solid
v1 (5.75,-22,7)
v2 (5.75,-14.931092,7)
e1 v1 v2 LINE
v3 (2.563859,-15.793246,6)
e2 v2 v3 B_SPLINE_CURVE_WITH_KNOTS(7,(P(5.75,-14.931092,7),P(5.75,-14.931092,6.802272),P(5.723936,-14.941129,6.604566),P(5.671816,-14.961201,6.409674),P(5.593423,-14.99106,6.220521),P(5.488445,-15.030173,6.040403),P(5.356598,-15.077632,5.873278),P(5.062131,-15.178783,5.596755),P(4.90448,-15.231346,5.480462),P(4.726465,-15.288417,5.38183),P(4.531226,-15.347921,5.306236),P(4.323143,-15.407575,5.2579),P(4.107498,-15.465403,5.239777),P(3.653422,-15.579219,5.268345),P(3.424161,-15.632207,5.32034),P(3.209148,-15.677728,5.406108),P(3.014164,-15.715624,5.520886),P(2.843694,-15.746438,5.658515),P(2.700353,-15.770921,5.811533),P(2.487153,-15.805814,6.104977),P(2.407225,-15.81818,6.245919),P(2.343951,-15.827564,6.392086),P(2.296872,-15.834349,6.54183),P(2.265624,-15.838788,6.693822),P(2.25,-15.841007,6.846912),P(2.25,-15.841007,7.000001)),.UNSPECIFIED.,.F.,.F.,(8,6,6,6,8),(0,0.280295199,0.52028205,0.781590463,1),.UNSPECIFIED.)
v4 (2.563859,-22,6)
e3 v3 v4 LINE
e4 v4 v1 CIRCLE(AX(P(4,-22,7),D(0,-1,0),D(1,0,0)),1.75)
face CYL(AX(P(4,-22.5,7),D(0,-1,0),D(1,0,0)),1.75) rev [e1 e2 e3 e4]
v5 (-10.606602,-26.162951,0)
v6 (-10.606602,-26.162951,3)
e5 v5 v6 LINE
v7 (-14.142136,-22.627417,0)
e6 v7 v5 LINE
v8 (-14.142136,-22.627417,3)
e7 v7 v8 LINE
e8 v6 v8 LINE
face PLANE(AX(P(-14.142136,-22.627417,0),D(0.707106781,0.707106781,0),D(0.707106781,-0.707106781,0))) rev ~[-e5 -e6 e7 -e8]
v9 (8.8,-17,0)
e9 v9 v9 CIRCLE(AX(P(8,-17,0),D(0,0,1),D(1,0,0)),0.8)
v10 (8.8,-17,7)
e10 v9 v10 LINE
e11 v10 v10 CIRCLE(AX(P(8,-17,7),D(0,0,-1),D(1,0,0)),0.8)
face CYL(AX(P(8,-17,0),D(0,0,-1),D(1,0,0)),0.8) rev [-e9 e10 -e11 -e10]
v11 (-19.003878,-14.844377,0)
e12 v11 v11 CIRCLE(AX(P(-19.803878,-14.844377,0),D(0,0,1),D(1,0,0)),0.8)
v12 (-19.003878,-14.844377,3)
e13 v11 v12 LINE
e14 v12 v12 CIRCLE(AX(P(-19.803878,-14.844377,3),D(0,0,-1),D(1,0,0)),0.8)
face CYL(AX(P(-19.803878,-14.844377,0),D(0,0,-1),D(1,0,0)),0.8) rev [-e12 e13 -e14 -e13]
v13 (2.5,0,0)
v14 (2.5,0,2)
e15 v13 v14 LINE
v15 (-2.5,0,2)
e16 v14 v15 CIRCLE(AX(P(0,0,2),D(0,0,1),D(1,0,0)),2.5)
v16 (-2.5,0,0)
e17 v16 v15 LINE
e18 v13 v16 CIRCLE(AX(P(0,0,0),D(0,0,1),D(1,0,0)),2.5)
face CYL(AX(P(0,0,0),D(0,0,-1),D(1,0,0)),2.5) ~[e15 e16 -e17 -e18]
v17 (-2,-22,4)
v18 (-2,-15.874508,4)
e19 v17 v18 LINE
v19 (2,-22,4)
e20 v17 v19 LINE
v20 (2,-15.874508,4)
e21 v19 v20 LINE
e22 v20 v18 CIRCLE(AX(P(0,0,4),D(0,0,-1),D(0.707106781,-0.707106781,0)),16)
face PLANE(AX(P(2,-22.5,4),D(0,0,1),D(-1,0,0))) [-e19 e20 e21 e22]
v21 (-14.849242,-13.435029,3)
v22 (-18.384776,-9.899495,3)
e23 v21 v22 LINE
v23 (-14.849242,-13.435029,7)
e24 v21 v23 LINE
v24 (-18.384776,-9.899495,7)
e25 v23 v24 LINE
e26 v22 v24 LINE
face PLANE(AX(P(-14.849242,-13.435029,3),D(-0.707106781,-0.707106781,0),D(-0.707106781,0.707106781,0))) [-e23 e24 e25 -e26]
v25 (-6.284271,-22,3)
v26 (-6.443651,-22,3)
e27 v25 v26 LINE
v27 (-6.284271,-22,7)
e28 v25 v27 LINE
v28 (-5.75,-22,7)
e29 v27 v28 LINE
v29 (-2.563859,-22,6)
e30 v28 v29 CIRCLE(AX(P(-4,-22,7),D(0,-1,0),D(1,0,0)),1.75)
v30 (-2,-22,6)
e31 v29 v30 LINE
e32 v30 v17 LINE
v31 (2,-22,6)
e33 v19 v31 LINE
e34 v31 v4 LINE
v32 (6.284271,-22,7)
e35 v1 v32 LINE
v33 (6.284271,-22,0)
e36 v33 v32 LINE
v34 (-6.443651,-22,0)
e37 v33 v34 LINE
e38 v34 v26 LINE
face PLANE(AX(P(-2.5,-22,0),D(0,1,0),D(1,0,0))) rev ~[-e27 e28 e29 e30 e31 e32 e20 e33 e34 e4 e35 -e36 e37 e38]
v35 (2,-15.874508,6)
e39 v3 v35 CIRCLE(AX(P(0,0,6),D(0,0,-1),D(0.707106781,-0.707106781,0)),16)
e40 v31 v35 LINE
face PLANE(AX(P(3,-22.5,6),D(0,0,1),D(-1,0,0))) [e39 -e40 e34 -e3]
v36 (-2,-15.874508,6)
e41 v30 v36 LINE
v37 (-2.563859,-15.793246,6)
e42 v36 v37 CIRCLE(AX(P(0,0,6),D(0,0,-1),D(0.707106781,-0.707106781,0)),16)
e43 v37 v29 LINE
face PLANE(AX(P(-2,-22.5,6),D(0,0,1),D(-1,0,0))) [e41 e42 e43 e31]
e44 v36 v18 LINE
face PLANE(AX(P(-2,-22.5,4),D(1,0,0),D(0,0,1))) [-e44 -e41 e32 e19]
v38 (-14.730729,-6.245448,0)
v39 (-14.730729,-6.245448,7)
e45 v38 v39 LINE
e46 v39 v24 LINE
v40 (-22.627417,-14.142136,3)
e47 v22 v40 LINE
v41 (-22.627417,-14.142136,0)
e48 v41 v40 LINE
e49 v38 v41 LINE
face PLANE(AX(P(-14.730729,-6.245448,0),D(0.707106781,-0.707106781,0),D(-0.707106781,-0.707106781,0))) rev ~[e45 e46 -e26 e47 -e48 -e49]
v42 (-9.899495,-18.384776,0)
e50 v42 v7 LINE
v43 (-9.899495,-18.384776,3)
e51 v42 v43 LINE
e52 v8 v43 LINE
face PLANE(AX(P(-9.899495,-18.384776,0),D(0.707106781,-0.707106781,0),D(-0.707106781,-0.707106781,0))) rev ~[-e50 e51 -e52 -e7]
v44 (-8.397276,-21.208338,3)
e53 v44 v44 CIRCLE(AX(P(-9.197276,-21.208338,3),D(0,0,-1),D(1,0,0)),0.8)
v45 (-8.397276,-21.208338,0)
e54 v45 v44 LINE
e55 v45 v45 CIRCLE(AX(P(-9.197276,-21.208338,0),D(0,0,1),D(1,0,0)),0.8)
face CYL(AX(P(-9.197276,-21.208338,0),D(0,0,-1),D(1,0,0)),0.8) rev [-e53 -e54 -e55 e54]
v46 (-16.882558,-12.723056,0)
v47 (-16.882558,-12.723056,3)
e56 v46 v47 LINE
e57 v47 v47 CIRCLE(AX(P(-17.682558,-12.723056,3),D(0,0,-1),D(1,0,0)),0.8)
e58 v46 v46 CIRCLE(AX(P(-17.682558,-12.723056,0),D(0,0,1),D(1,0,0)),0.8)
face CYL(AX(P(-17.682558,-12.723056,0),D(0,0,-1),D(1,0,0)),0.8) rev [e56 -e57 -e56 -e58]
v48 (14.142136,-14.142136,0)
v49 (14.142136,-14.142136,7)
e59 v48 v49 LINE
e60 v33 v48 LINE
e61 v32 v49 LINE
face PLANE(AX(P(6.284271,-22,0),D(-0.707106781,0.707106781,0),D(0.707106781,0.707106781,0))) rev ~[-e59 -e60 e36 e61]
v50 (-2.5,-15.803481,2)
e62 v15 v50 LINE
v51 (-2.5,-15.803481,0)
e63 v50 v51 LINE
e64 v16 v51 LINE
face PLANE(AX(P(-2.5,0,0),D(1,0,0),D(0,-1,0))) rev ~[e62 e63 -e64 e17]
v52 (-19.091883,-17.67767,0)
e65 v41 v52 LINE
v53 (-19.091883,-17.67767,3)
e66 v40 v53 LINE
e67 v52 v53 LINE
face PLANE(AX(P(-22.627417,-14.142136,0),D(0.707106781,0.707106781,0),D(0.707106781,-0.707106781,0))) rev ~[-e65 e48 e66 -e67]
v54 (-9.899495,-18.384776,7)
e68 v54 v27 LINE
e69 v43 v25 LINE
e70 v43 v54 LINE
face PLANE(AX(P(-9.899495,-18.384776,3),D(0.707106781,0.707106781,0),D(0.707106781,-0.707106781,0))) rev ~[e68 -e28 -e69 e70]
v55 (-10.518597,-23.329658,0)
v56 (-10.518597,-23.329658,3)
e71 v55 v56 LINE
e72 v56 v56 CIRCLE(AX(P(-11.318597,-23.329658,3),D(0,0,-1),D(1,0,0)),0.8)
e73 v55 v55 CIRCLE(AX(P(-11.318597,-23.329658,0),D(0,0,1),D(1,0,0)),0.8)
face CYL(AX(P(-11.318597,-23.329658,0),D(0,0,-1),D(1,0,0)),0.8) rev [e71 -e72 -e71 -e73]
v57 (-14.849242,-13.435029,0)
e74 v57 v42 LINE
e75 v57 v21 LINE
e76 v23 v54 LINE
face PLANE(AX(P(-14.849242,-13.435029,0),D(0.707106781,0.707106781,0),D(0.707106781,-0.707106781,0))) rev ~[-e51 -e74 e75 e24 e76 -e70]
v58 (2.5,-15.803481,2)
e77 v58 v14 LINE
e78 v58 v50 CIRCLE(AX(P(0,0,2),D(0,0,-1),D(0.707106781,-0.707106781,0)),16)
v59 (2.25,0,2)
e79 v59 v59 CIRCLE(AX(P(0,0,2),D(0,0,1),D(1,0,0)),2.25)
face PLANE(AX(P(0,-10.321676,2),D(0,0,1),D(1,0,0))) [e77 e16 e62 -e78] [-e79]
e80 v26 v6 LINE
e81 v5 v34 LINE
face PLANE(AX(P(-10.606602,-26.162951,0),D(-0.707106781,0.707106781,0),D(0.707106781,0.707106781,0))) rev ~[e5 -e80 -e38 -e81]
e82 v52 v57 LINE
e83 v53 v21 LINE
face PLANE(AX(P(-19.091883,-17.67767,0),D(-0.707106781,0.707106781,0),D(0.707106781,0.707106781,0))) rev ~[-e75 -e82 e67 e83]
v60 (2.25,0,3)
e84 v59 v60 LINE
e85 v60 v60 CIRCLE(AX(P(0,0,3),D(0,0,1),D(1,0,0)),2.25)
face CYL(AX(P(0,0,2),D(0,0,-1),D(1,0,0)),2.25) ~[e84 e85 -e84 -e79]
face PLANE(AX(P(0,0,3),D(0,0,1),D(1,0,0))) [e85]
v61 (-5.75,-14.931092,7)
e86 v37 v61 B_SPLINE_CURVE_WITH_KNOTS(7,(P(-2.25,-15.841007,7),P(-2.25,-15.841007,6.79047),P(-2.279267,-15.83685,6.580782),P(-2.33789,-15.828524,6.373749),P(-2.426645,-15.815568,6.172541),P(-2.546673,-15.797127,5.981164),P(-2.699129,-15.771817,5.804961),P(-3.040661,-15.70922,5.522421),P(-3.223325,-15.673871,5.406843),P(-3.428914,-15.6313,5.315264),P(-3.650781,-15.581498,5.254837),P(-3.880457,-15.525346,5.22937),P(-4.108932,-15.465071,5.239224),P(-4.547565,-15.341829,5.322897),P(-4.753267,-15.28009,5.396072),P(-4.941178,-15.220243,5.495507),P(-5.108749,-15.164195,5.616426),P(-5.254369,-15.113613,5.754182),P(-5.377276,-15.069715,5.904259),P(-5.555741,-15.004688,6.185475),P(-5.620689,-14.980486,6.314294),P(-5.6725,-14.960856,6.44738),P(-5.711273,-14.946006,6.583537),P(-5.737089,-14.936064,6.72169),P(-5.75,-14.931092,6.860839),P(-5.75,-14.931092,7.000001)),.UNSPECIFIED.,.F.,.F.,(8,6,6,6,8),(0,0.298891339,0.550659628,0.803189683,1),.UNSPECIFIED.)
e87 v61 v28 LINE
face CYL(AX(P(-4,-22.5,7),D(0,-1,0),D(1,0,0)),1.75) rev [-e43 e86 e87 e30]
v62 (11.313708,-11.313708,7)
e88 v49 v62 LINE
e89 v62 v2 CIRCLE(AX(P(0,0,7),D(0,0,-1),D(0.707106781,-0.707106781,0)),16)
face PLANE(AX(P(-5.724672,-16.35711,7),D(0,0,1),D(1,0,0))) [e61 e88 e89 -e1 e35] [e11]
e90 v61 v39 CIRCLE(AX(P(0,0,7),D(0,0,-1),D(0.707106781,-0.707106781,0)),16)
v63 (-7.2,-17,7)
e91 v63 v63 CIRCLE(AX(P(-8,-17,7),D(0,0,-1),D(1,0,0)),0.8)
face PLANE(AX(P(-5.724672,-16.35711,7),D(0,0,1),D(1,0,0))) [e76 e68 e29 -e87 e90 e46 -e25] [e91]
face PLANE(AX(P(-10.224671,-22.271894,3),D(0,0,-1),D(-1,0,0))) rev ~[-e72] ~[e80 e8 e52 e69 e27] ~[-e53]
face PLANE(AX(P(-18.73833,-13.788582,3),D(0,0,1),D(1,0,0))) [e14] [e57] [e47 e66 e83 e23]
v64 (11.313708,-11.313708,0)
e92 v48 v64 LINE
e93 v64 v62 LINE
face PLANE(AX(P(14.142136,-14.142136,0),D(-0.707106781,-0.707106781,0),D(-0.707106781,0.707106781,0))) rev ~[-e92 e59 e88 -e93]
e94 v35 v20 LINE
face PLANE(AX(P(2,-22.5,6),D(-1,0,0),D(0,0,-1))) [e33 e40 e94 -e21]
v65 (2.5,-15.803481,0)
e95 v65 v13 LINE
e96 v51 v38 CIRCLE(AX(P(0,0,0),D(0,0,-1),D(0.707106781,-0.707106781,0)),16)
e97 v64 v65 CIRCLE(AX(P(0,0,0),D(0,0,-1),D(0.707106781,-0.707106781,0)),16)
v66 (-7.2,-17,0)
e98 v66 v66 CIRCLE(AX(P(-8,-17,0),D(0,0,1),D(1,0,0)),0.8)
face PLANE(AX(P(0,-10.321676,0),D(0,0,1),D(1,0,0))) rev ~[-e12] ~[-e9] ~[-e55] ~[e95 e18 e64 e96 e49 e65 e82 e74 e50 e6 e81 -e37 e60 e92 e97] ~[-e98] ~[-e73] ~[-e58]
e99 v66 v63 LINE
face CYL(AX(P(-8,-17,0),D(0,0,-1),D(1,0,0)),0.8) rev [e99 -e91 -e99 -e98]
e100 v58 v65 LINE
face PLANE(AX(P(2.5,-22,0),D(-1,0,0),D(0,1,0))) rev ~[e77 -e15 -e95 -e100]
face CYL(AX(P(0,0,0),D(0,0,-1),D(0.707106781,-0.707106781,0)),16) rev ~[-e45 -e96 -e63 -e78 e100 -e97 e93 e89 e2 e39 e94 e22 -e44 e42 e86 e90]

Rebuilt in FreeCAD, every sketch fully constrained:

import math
import FreeCAD as App
import Part
import Sketcher
Q = App.Units.Quantity


def add_polygon(sketch, points):
    """Adds a closed chain of lines whose ends are joined by coincident constraints."""
    first, n = sketch.GeometryCount, len(points)
    for a, b in zip(points, points[1:] + points[:1]):
        sketch.addGeometry(Part.LineSegment(App.Vector(*a, 0), App.Vector(*b, 0)), False)
    for i in range(n):
        sketch.addConstraint(Sketcher.Constraint("Coincident", first + i, 2, first + (i + 1) % n, 1))

doc = App.newDocument("Part")
params = doc.addObject("Spreadsheet::Sheet", "Params")
for row, (alias, value) in enumerate([
    ("sketch1_radius", "16 mm"),
    ("sketch1_length", "4 mm"),
    ("sketch1_length2", "5 mm"),
    ("sketch1_length3", "6 mm"),
    ("sketch1_length4", "7 mm"),
    ("pad1_length", "7 mm"),
    ("sketch2_radius", "2.5 mm"),
    ("sketch2_height", "22 mm"),
    ("pad2_length", "2 mm"),
    ("sketch3_diameter", "4.5 mm"),
    ("pad3_length", "1 mm"),
    ("sketch4_diameter", "3.5 mm"),
    ("pocket1_length", "20 mm"),
    ("sketch5_width", "6 mm"),
    ("sketch5_width2", "1 mm"),
    ("sketch5_height", "2 mm"),
    ("pocket2_length", "8 mm"),
    ("sketch6_diameter", "1.6 mm"),
    ("sketch7_length", "6 mm"),
    ("sketch7_length2", "5 mm"),
    ("pocket4_length", "4 mm"),
], start=1):
    params.set(f"A{row}", alias)
    params.set(f"B{row}", "=" + value)
    params.setAlias(f"B{row}", alias)

body = doc.addObject("PartDesign::Body", "Body")

# Sketch on XY plane
sketch1 = doc.addObject("Sketcher::SketchObject", "Sketch")
body.addObject(sketch1)
sketch1.AttachmentSupport = (doc.XY_Plane, [""])
sketch1.MapMode = "FlatFace"
sketch1.addGeometry([
    Part.LineSegment(App.Vector(14.142136, -14.142136, 0), App.Vector(11.313708, -11.313708, 0)),  # 0
    Part.ArcOfCircle(Part.Circle(App.Vector(0, 0, 0), App.Vector(0, 0, 1), 16), math.radians(-157.024313), math.radians(-45)),  # 1
    Part.LineSegment(App.Vector(-14.730729, -6.245448, 0), App.Vector(-22.627417, -14.142136, 0)),  # 2
    Part.LineSegment(App.Vector(-22.627417, -14.142136, 0), App.Vector(-19.091883, -17.67767, 0)),  # 3
    Part.LineSegment(App.Vector(-19.091883, -17.67767, 0), App.Vector(-14.849242, -13.435029, 0)),  # 4
    Part.LineSegment(App.Vector(-14.849242, -13.435029, 0), App.Vector(-9.899495, -18.384776, 0)),  # 5
    Part.LineSegment(App.Vector(-9.899495, -18.384776, 0), App.Vector(-14.142136, -22.627417, 0)),  # 6
    Part.LineSegment(App.Vector(-14.142136, -22.627417, 0), App.Vector(-10.606602, -26.162951, 0)),  # 7
    Part.LineSegment(App.Vector(-10.606602, -26.162951, 0), App.Vector(-6.443651, -22, 0)),  # 8
    Part.LineSegment(App.Vector(-6.443651, -22, 0), App.Vector(6.284271, -22, 0)),  # 9
    Part.LineSegment(App.Vector(6.284271, -22, 0), App.Vector(14.142136, -14.142136, 0)),  # 10
], False)
sketch1.addConstraint([
    Sketcher.Constraint("Coincident", 0, 2, 1, 2),
    Sketcher.Constraint("Coincident", 1, 1, 2, 1),
    Sketcher.Constraint("Coincident", 2, 2, 3, 1),
    Sketcher.Constraint("Coincident", 3, 2, 4, 1),
    Sketcher.Constraint("Coincident", 4, 2, 5, 1),
    Sketcher.Constraint("Coincident", 5, 2, 6, 1),
    Sketcher.Constraint("Coincident", 6, 2, 7, 1),
    Sketcher.Constraint("Coincident", 7, 2, 8, 1),
    Sketcher.Constraint("Coincident", 8, 2, 9, 1),
    Sketcher.Constraint("Coincident", 9, 2, 10, 1),
    Sketcher.Constraint("Coincident", 10, 2, 0, 1),
    Sketcher.Constraint("Horizontal", 9),
    Sketcher.Constraint("Coincident", 1, 3, -1, 1),
    Sketcher.Constraint("Perpendicular", 0, 2),
    Sketcher.Constraint("Perpendicular", 2, 3),
    Sketcher.Constraint("Perpendicular", 3, 4),
    Sketcher.Constraint("Perpendicular", 4, 5),
    Sketcher.Constraint("Perpendicular", 5, 6),
    Sketcher.Constraint("Perpendicular", 6, 7),
    Sketcher.Constraint("Perpendicular", 7, 8),
    Sketcher.Constraint("Parallel", 8, 10),
    Sketcher.Constraint("Horizontal", 2, 2, 10, 2),
    Sketcher.Constraint("Equal", 4, 6),
    Sketcher.Constraint("Equal", 3, 7),
    Sketcher.Constraint("Radius", 1, 16.0),
    Sketcher.Constraint("Angle", 0, Q("135 deg")),
    Sketcher.Constraint("Distance", 0, 4.0),
    Sketcher.Constraint("Distance", 3, 5.0),
    Sketcher.Constraint("Distance", 4, 6.0),
    Sketcher.Constraint("Distance", 5, 7.0),
    Sketcher.Constraint("DistanceY", 8, 2, -1, 1, 22.0),
    Sketcher.Constraint("Distance", 8, 5.887302),
    Sketcher.Constraint("DistanceX", 7, 2, -1, 1, 10.606602),
])
sketch1.setExpression("Constraints[24]", "Params.sketch1_radius")
sketch1.setExpression("Constraints[26]", "Params.sketch1_length")
sketch1.setExpression("Constraints[27]", "Params.sketch1_length2")
sketch1.setExpression("Constraints[28]", "Params.sketch1_length3")
sketch1.setExpression("Constraints[29]", "Params.sketch1_length4")
pad1 = doc.addObject("PartDesign::Pad", "Pad")
body.addObject(pad1)
pad1.Profile = sketch1
pad1.setExpression("Length", "Params.pad1_length")

# Sketch on XY plane
sketch2 = doc.addObject("Sketcher::SketchObject", "Sketch001")
body.addObject(sketch2)
sketch2.AttachmentSupport = (doc.XY_Plane, [""])
sketch2.MapMode = "FlatFace"
sketch2.addGeometry([
    Part.LineSegment(App.Vector(-2.5, 0, 0), App.Vector(-2.5, -22, 0)),
    Part.LineSegment(App.Vector(-2.5, -22, 0), App.Vector(2.5, -22, 0)),
    Part.LineSegment(App.Vector(2.5, -22, 0), App.Vector(2.5, 0, 0)),
    Part.ArcOfCircle(Part.Circle(App.Vector(0, 0, 0), App.Vector(0, 0, 1), 2.5), math.radians(0), math.radians(180)),
], False)
sketch2.addConstraint([
    Sketcher.Constraint("Coincident", 0, 2, 1, 1),
    Sketcher.Constraint("Coincident", 1, 2, 2, 1),
    Sketcher.Constraint("Tangent", 2, 2, 3, 1),
    Sketcher.Constraint("Tangent", 3, 2, 0, 1),
    Sketcher.Constraint("Vertical", 0),
    Sketcher.Constraint("Horizontal", 1),
    Sketcher.Constraint("Vertical", 2),
    Sketcher.Constraint("Coincident", 3, 3, -1, 1),
    Sketcher.Constraint("Radius", 3, 2.5),
    Sketcher.Constraint("DistanceY", 0, 2, 0, 1, 22.0),
])
sketch2.setExpression("Constraints[8]", "Params.sketch2_radius")
sketch2.setExpression("Constraints[9]", "Params.sketch2_height")
pad2 = doc.addObject("PartDesign::Pad", "Pad001")
body.addObject(pad2)
pad2.Profile = sketch2
pad2.setExpression("Length", "Params.pad2_length")

# Sketch on XY plane
sketch3 = doc.addObject("Sketcher::SketchObject", "Sketch002")
body.addObject(sketch3)
sketch3.AttachmentSupport = (doc.XY_Plane, [""])
sketch3.MapMode = "FlatFace"
sketch3.AttachmentOffset = App.Placement(App.Vector(0, 0, 2), App.Rotation())
sketch3.addGeometry(Part.Circle(App.Vector(0, 0, 0), App.Vector(0, 0, 1), 2.25), False)
sketch3.addConstraint([
    Sketcher.Constraint("Coincident", 0, 3, -1, 1),
    Sketcher.Constraint("Diameter", 0, 4.5),
])
sketch3.setExpression("Constraints[1]", "Params.sketch3_diameter")
pad3 = doc.addObject("PartDesign::Pad", "Pad002")
body.addObject(pad3)
pad3.Profile = sketch3
pad3.setExpression("Length", "Params.pad3_length")

# Sketch on XZ plane
sketch4 = doc.addObject("Sketcher::SketchObject", "Sketch003")
body.addObject(sketch4)
sketch4.AttachmentSupport = (doc.XZ_Plane, [""])
sketch4.MapMode = "FlatFace"
sketch4.AttachmentOffset = App.Placement(App.Vector(0, 0, 22.5), App.Rotation())
sketch4.addGeometry([
    Part.Circle(App.Vector(-4, 7, 0), App.Vector(0, 0, 1), 1.75),
    Part.Circle(App.Vector(4, 7, 0), App.Vector(0, 0, 1), 1.75),
], False)
sketch4.addConstraint([
    Sketcher.Constraint("Equal", 0, 1),
    Sketcher.Constraint("Symmetric", 0, 3, 1, 3, -2),
    Sketcher.Constraint("Diameter", 0, 3.5),
    Sketcher.Constraint("DistanceX", 0, 3, -1, 1, 4.0),
    Sketcher.Constraint("DistanceY", -1, 1, 0, 3, 7.0),
])
sketch4.setExpression("Constraints[2]", "Params.sketch4_diameter")
pocket1 = doc.addObject("PartDesign::Pocket", "Pocket")
body.addObject(pocket1)
pocket1.Profile = sketch4
pocket1.setExpression("Length", "Params.pocket1_length")

# Sketch on XZ plane
sketch5 = doc.addObject("Sketcher::SketchObject", "Sketch004")
body.addObject(sketch5)
sketch5.AttachmentSupport = (doc.XZ_Plane, [""])
sketch5.MapMode = "FlatFace"
sketch5.AttachmentOffset = App.Placement(App.Vector(0, 0, 22.5), App.Rotation())
add_polygon(sketch5, [(-3, 7), (3, 7), (3, 6), (2, 6), (2, 4), (-2, 4), (-2, 6), (-3, 6)])  # lines 0-7
sketch5.addConstraint([
    Sketcher.Constraint("Horizontal", 0),
    Sketcher.Constraint("Vertical", 1),
    Sketcher.Constraint("Horizontal", 2),
    Sketcher.Constraint("Vertical", 3),
    Sketcher.Constraint("Horizontal", 4),
    Sketcher.Constraint("Vertical", 5),
    Sketcher.Constraint("Horizontal", 6),
    Sketcher.Constraint("Vertical", 7),
    Sketcher.Constraint("Symmetric", 2, 2, 5, 2, -2),
    Sketcher.Constraint("Equal", 2, 6),
    Sketcher.Constraint("Equal", 6, 1),
    Sketcher.Constraint("DistanceX", 0, 1, 0, 2, 6.0),
    Sketcher.Constraint("DistanceX", 2, 2, 2, 1, 1.0),
    Sketcher.Constraint("DistanceY", 3, 2, 3, 1, 2.0),
    Sketcher.Constraint("DistanceY", -1, 1, 0, 2, 7.0),
])
sketch5.setExpression("Constraints[19]", "Params.sketch5_width")
sketch5.setExpression("Constraints[20]", "Params.sketch5_width2")
sketch5.setExpression("Constraints[21]", "Params.sketch5_height")
pocket2 = doc.addObject("PartDesign::Pocket", "Pocket001")
body.addObject(pocket2)
pocket2.Profile = sketch5
pocket2.setExpression("Length", "Params.pocket2_length")

# Sketch on XY plane
sketch6 = doc.addObject("Sketcher::SketchObject", "Sketch005")
body.addObject(sketch6)
sketch6.AttachmentSupport = (doc.XY_Plane, [""])
sketch6.MapMode = "FlatFace"
sketch6.addGeometry([
    Part.Circle(App.Vector(-11.318597, -23.329658, 0), App.Vector(0, 0, 1), 0.8),  # 0
    Part.Circle(App.Vector(-17.682558, -12.723056, 0), App.Vector(0, 0, 1), 0.8),  # 1
    Part.Circle(App.Vector(8, -17, 0), App.Vector(0, 0, 1), 0.8),  # 2
    Part.Circle(App.Vector(-9.197276, -21.208338, 0), App.Vector(0, 0, 1), 0.8),  # 3
    Part.Circle(App.Vector(-8, -17, 0), App.Vector(0, 0, 1), 0.8),  # 4
    Part.Circle(App.Vector(-19.803878, -14.844377, 0), App.Vector(0, 0, 1), 0.8),  # 5
], False)
sketch6.addConstraint([
    Sketcher.Constraint("Equal", 0, 1),
    Sketcher.Constraint("Equal", 1, 2),
    Sketcher.Constraint("Equal", 2, 3),
    Sketcher.Constraint("Equal", 3, 4),
    Sketcher.Constraint("Equal", 4, 5),
    Sketcher.Constraint("Symmetric", 2, 3, 4, 3, -2),
    Sketcher.Constraint("Diameter", 0, 1.6),
    Sketcher.Constraint("DistanceX", -1, 1, 2, 3, 8.0),
    Sketcher.Constraint("DistanceY", 2, 3, -1, 1, 17.0),
    Sketcher.Constraint("DistanceY", 0, 3, 1, 3, 10.606602),
    Sketcher.Constraint("DistanceX", 5, 3, 3, 3, 10.606602),
    Sketcher.Constraint("DistanceY", 0, 3, -1, 1, 23.329658),
    Sketcher.Constraint("DistanceX", 5, 3, -1, 1, 19.803878),
    Sketcher.Constraint("DistanceX", 1, 3, 0, 3, 6.363961),
    Sketcher.Constraint("DistanceX", 0, 3, 3, 3, 2.12132),
    Sketcher.Constraint("DistanceY", 0, 3, 3, 3, 2.12132),
    Sketcher.Constraint("DistanceY", 5, 3, 1, 3, 2.12132),
])
sketch6.setExpression("Constraints[6]", "Params.sketch6_diameter")
pocket3 = doc.addObject("PartDesign::Pocket", "Pocket002")
body.addObject(pocket3)
pocket3.Profile = sketch6
pocket3.Type = "ThroughAll"
pocket3.Reversed = True

# Sketch on XY plane
sketch7 = doc.addObject("Sketcher::SketchObject", "Sketch006")
body.addObject(sketch7)
sketch7.AttachmentSupport = (doc.XY_Plane, [""])
sketch7.MapMode = "FlatFace"
sketch7.AttachmentOffset = App.Placement(App.Vector(0, 0, 3), App.Rotation())
add_polygon(sketch7, [(-19.091883, -17.67767), (-14.849242, -13.435029), (-18.384776, -9.899495), (-22.627417, -14.142136)])  # lines 0-3
add_polygon(sketch7, [(-9.899495, -18.384776), (-14.142136, -22.627417), (-10.606602, -26.162951), (-6.443651, -22), (-6.284271, -22)])  # lines 4-8
sketch7.addConstraint([
    Sketcher.Constraint("Horizontal", 7),
    Sketcher.Constraint("Perpendicular", 0, 1),
    Sketcher.Constraint("Perpendicular", 1, 2),
    Sketcher.Constraint("Perpendicular", 2, 3),
    Sketcher.Constraint("Perpendicular", 3, 4),
    Sketcher.Constraint("Perpendicular", 4, 5),
    Sketcher.Constraint("Perpendicular", 5, 6),
    Sketcher.Constraint("Perpendicular", 6, 8),
    Sketcher.Constraint("Equal", 2, 4),
    Sketcher.Constraint("Equal", 3, 5),
    Sketcher.Constraint("Angle", 0, Q("45 deg")),
    Sketcher.Constraint("Distance", 0, 6.0),
    Sketcher.Constraint("Distance", 1, 5.0),
    Sketcher.Constraint("DistanceY", 6, 2, -1, 1, 22.0),
    Sketcher.Constraint("Distance", 6, 5.887302),
    Sketcher.Constraint("DistanceX", 5, 2, -1, 1, 10.606602),
    Sketcher.Constraint("DistanceY", 0, 2, -1, 1, 13.435029),
    Sketcher.Constraint("DistanceX", 2, 2, 4, 2, 8.485281),
])
sketch7.setExpression("Constraints[20]", "Params.sketch7_length")
sketch7.setExpression("Constraints[21]", "Params.sketch7_length2")
pocket4 = doc.addObject("PartDesign::Pocket", "Pocket003")
body.addObject(pocket4)
pocket4.Profile = sketch7
pocket4.setExpression("Length", "Params.pocket4_length")
pocket4.Reversed = True

doc.recompute()
